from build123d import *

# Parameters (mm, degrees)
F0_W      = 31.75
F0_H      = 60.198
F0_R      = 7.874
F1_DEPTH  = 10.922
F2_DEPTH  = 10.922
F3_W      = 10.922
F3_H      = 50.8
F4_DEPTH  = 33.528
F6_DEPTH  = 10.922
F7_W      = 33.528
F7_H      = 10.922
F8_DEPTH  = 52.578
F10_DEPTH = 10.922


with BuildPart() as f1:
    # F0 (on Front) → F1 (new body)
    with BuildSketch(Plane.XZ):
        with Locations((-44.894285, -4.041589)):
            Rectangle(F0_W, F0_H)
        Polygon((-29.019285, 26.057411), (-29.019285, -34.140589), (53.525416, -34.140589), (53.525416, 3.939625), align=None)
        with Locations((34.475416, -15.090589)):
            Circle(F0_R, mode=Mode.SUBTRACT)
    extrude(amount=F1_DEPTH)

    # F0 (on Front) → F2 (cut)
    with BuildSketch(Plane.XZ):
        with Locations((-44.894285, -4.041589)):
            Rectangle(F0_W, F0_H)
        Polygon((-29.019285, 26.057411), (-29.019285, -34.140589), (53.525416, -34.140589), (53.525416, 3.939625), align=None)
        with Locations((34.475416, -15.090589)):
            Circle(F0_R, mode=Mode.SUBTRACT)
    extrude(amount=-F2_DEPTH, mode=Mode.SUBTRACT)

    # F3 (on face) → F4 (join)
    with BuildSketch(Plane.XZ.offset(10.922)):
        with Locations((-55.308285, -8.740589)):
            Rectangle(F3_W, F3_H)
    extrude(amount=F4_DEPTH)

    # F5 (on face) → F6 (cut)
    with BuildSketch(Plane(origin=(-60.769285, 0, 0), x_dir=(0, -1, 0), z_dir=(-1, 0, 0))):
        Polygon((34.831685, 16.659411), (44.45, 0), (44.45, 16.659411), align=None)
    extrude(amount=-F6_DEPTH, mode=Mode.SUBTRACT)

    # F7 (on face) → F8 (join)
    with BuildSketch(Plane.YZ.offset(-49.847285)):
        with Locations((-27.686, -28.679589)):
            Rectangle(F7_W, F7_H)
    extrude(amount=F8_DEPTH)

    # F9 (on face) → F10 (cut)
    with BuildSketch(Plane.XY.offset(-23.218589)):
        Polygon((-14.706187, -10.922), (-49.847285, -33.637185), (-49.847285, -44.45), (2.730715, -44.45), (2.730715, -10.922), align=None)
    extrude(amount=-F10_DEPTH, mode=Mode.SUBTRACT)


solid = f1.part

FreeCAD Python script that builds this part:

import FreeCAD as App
import Part
import Sketcher
Q = App.Units.Quantity


def add_polygon(sketch, points):
    """Adds a closed chain of lines whose ends are joined by coincident constraints."""
    first, n = sketch.GeometryCount, len(points)
    for a, b in zip(points, points[1:] + points[:1]):
        sketch.addGeometry(Part.LineSegment(App.Vector(*a, 0), App.Vector(*b, 0)), False)
    for i in range(n):
        sketch.addConstraint(Sketcher.Constraint("Coincident", first + i, 2, first + (i + 1) % n, 1))

doc = App.newDocument("Part")
body = doc.addObject("PartDesign::Body", "Body")

# Sketch on XZ plane
sketch1 = doc.addObject("Sketcher::SketchObject", "Sketch")
body.addObject(sketch1)
sketch1.AttachmentSupport = (doc.XZ_Plane, [""])
sketch1.MapMode = "FlatFace"
add_polygon(sketch1, [(-60.769285, 26.057411), (-60.769285, -34.140589), (53.525416, -34.140589), (53.525416, 3.939625), (-29.019285, 26.057411)])  # lines 0-4
sketch1.addGeometry(Part.Circle(App.Vector(34.475416, -15.090589, 0), App.Vector(0, 0, 1), 7.874), False)  # 5
sketch1.addConstraint(Sketcher.Constraint("Vertical", 0))
sketch1.addConstraint(Sketcher.Constraint("Horizontal", 1))
sketch1.addConstraint(Sketcher.Constraint("Vertical", 2))
sketch1.addConstraint(Sketcher.Constraint("Horizontal", 4))
sketch1.addConstraint(Sketcher.Constraint("Diameter", 5, Q("0.62 in")))
sketch1.addConstraint(Sketcher.Constraint("Angle", 3, Q("165 deg")))
sketch1.addConstraint(Sketcher.Constraint("DistanceX", 4, 2, 4, 1, Q("1.25 in")))
sketch1.addConstraint(Sketcher.Constraint("DistanceY", 0, 2, 0, 1, Q("2.37 in")))
sketch1.addConstraint(Sketcher.Constraint("DistanceY", 0, 2, 5, 3, Q("0.75 in")))
sketch1.addConstraint(Sketcher.Constraint("DistanceX", 5, 3, 1, 2, Q("0.75 in")))
sketch1.addConstraint(Sketcher.Constraint("DistanceX", 1, 1, 1, 2, 114.294701))
sketch1.addConstraint(Sketcher.Constraint("DistanceX", -1, 1, 5, 3, Q("1.3572998 in")))
sketch1.addConstraint(Sketcher.Constraint("DistanceY", 5, 3, -1, 1, 15.090589))
pad1 = doc.addObject("PartDesign::Pad", "Pad")
body.addObject(pad1)
pad1.Profile = sketch1
pad1.Length = Q("0.43 in")

# Sketch on XZ plane
sketch2 = doc.addObject("Sketcher::SketchObject", "Sketch001")
body.addObject(sketch2)
sketch2.AttachmentSupport = (doc.XZ_Plane, [""])
sketch2.MapMode = "FlatFace"
add_polygon(sketch2, [(-60.769285, 26.057411), (-60.769285, -34.140589), (53.525416, -34.140589), (53.525416, 3.939625), (-29.019285, 26.057411)])  # lines 0-4
sketch2.addGeometry(Part.Circle(App.Vector(34.475416, -15.090589, 0), App.Vector(0, 0, 1), 7.874), False)  # 5
sketch2.addConstraint(Sketcher.Constraint("Vertical", 0))
sketch2.addConstraint(Sketcher.Constraint("Horizontal", 1))
sketch2.addConstraint(Sketcher.Constraint("Vertical", 2))
sketch2.addConstraint(Sketcher.Constraint("Horizontal", 4))
sketch2.addConstraint(Sketcher.Constraint("Diameter", 5, Q("0.62 in")))
sketch2.addConstraint(Sketcher.Constraint("Angle", 3, Q("165 deg")))
sketch2.addConstraint(Sketcher.Constraint("DistanceX", 4, 2, 4, 1, Q("1.25 in")))
sketch2.addConstraint(Sketcher.Constraint("DistanceY", 0, 2, 0, 1, Q("2.37 in")))
sketch2.addConstraint(Sketcher.Constraint("DistanceY", 0, 2, 5, 3, Q("0.75 in")))
sketch2.addConstraint(Sketcher.Constraint("DistanceX", 5, 3, 1, 2, Q("0.75 in")))
sketch2.addConstraint(Sketcher.Constraint("DistanceX", 1, 1, 1, 2, 114.294701))
sketch2.addConstraint(Sketcher.Constraint("DistanceX", -1, 1, 5, 3, Q("1.3572998 in")))
sketch2.addConstraint(Sketcher.Constraint("DistanceY", 5, 3, -1, 1, 15.090589))
pocket1 = doc.addObject("PartDesign::Pocket", "Pocket")
body.addObject(pocket1)
pocket1.Profile = sketch2
pocket1.Length = Q("0.43 in")

# Sketch on XZ plane
sketch3 = doc.addObject("Sketcher::SketchObject", "Sketch002")
body.addObject(sketch3)
sketch3.AttachmentSupport = (doc.XZ_Plane, [""])
sketch3.MapMode = "FlatFace"
sketch3.AttachmentOffset = App.Placement(App.Vector(0, 0, 0.43 * 25.4), App.Rotation())
add_polygon(sketch3, [(-60.769285, 16.659411), (-60.769285, -34.140589), (-49.847285, -34.140589), (-49.847285, 16.659411)])  # lines 0-3
sketch3.addConstraint(Sketcher.Constraint("Vertical", 0))
sketch3.addConstraint(Sketcher.Constraint("Horizontal", 1))
sketch3.addConstraint(Sketcher.Constraint("Vertical", 2))
sketch3.addConstraint(Sketcher.Constraint("Horizontal", 3))
sketch3.addConstraint(Sketcher.Constraint("DistanceY", 0, 2, 0, 1, Q("2 in")))
sketch3.addConstraint(Sketcher.Constraint("DistanceX", 1, 1, 1, 2, Q("0.43 in")))
sketch3.addConstraint(Sketcher.Constraint("DistanceY", 0, 2, -1, 1, 34.140589))
sketch3.addConstraint(Sketcher.Constraint("DistanceX", 0, 2, -1, 1, 60.769285))
pad2 = doc.addObject("PartDesign::Pad", "Pad001")
body.addObject(pad2)
pad2.Profile = sketch3
pad2.Length = Q("1.32 in")

# Sketch on YZ plane
sketch4 = doc.addObject("Sketcher::SketchObject", "Sketch003")
body.addObject(sketch4)
sketch4.AttachmentSupport = (doc.YZ_Plane, [""])
sketch4.MapMode = "FlatFace"
sketch4.AttachmentOffset = App.Placement(App.Vector(0, 0, -60.769285), App.Rotation())
add_polygon(sketch4, [(-34.831685, 16.659411), (-44.45, 0), (-44.45, 16.659411)])  # lines 0-2
sketch4.addConstraint(Sketcher.Constraint("Vertical", 1))
sketch4.addConstraint(Sketcher.Constraint("Horizontal", 2))
sketch4.addConstraint(Sketcher.Constraint("PointOnObject", 0, 2, -1))
sketch4.addConstraint(Sketcher.Constraint("Angle", 0, Q("-119.999999 deg")))
sketch4.addConstraint(Sketcher.Constraint("DistanceX", 0, 2, -1, 1, Q("1.75 in")))
sketch4.addConstraint(Sketcher.Constraint("DistanceY", 1, 1, 1, 2, 16.659411))
pocket2 = doc.addObject("PartDesign::Pocket", "Pocket001")
body.addObject(pocket2)
pocket2.Profile = sketch4
pocket2.Length = Q("0.43 in")
pocket2.Reversed = True

# Sketch on YZ plane
sketch5 = doc.addObject("Sketcher::SketchObject", "Sketch004")
body.addObject(sketch5)
sketch5.AttachmentSupport = (doc.YZ_Plane, [""])
sketch5.MapMode = "FlatFace"
sketch5.AttachmentOffset = App.Placement(App.Vector(0, 0, -49.847285), App.Rotation())
add_polygon(sketch5, [(-44.45, -23.218589), (-44.45, -34.140589), (-10.922, -34.140589), (-10.922, -23.218589)])  # lines 0-3
sketch5.addConstraint(Sketcher.Constraint("Vertical", 0))
sketch5.addConstraint(Sketcher.Constraint("Horizontal", 1))
sketch5.addConstraint(Sketcher.Constraint("Vertical", 2))
sketch5.addConstraint(Sketcher.Constraint("Horizontal", 3))
sketch5.addConstraint(Sketcher.Constraint("DistanceX", 1, 1, 1, 2, Q("1.32 in")))
sketch5.addConstraint(Sketcher.Constraint("DistanceY", 0, 2, 0, 1, Q("0.43 in")))
sketch5.addConstraint(Sketcher.Constraint("DistanceX", 0, 2, -1, 1, Q("1.75 in")))
sketch5.addConstraint(Sketcher.Constraint("DistanceY", 0, 2, -1, 1, 34.140589))
pad3 = doc.addObject("PartDesign::Pad", "Pad002")
body.addObject(pad3)
pad3.Profile = sketch5
pad3.Length = Q("2.07 in")

# Sketch on XY plane
sketch6 = doc.addObject("Sketcher::SketchObject", "Sketch005")
body.addObject(sketch6)
sketch6.AttachmentSupport = (doc.XY_Plane, [""])
sketch6.MapMode = "FlatFace"
sketch6.AttachmentOffset = App.Placement(App.Vector(0, 0, -23.218589), App.Rotation())
add_polygon(sketch6, [(-14.706187, -10.922), (-49.847285, -33.637185), (-49.847285, -44.45), (2.730715, -44.45), (2.730715, -10.922)])  # lines 0-4
sketch6.addConstraint(Sketcher.Constraint("Vertical", 1))
sketch6.addConstraint(Sketcher.Constraint("Horizontal", 2))
sketch6.addConstraint(Sketcher.Constraint("Vertical", 3))
sketch6.addConstraint(Sketcher.Constraint("Horizontal", 4))
sketch6.addConstraint(Sketcher.Constraint("DistanceX", 2, 1, 2, 2, Q("2.07 in")))
sketch6.addConstraint(Sketcher.Constraint("DistanceY", 3, 1, 3, 2, Q("1.32 in")))
sketch6.addConstraint(Sketcher.Constraint("DistanceY", 1, 2, -1, 1, Q("1.75 in")))
sketch6.addConstraint(Sketcher.Constraint("DistanceX", 4, 2, 4, 1, 17.436902))
sketch6.addConstraint(Sketcher.Constraint("DistanceY", 1, 2, 1, 1, 10.812815))
sketch6.addConstraint(Sketcher.Constraint("DistanceX", 0, 2, -1, 1, 49.847285))
pocket3 = doc.addObject("PartDesign::Pocket", "Pocket002")
body.addObject(pocket3)
pocket3.Profile = sketch6
pocket3.Length = Q("0.43 in")

doc.recompute()
